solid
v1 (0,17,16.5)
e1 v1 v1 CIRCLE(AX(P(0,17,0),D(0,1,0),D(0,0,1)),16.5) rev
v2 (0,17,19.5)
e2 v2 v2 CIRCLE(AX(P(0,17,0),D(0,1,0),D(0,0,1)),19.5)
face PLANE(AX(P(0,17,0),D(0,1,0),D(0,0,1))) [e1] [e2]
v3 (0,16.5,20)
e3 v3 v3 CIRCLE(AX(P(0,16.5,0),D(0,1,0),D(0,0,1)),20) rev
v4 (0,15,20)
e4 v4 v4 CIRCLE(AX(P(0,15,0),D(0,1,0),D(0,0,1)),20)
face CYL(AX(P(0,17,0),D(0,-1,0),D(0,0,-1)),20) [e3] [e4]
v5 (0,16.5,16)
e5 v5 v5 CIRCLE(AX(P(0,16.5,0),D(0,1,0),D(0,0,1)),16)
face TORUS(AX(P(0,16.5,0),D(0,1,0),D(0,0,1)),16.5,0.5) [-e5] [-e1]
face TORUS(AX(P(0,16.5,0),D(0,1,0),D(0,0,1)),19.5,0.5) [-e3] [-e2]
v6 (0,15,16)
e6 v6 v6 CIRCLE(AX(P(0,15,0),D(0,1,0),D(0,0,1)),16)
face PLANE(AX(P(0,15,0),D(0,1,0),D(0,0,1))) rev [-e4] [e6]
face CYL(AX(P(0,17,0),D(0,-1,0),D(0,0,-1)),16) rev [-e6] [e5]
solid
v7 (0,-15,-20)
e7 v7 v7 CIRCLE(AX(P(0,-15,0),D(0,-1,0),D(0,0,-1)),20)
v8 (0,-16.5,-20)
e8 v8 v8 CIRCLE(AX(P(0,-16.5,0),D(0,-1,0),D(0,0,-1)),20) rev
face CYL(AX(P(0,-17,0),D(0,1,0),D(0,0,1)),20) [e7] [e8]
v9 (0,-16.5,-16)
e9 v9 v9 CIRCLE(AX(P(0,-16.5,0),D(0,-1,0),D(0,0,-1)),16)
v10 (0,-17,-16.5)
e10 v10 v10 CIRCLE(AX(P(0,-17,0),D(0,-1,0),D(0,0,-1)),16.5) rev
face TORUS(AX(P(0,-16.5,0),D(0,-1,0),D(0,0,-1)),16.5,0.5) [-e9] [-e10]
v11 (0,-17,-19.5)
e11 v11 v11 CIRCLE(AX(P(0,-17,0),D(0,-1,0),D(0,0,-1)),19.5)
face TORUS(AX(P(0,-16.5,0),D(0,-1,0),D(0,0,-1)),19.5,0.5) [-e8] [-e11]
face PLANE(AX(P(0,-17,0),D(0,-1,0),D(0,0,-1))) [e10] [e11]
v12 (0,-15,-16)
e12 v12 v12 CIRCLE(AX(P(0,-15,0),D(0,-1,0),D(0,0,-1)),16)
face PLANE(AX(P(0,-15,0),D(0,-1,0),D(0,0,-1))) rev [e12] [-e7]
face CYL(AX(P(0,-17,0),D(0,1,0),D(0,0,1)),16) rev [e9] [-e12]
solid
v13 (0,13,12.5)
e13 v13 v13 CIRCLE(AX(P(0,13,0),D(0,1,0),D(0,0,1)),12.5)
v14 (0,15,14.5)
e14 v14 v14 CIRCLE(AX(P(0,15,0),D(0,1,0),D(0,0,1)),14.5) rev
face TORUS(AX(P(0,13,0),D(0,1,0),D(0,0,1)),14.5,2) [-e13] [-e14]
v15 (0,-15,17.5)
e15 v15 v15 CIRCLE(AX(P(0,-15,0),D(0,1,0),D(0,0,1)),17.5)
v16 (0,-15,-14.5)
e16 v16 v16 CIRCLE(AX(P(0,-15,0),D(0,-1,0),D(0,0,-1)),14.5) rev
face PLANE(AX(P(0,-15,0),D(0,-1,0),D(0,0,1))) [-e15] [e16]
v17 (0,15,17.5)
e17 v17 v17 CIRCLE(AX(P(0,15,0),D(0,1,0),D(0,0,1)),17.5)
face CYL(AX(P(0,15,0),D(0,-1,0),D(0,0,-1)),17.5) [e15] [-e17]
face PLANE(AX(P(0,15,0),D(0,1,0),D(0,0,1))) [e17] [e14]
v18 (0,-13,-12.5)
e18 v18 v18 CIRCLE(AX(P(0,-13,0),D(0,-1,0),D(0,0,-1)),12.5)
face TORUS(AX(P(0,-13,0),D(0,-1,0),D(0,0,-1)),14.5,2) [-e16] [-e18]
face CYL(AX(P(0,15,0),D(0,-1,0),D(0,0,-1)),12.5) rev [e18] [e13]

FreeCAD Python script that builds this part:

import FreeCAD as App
import Part
import Sketcher

V = App.Vector
Q = App.Units.Quantity


def edges_at(feature, points):
    """Names of the edges that pass closest to the given points."""
    edges = feature.Shape.Edges
    near = lambda p: min(range(len(edges)), key=lambda i: edges[i].distToShape(Part.Vertex(*p))[0])
    return sorted({f"Edge{near(p) + 1}" for p in points})

doc = App.newDocument("Part")
body = doc.addObject("PartDesign::Body", "Body")

# Sketch on XZ plane
sketch1 = body.newObject("Sketcher::SketchObject", "Sketch")
sketch1.AttachmentSupport = (doc.getObject("XZ_Plane"), [""])
sketch1.MapMode = "FlatFace"
sketch1.addGeometry([
    Part.Circle(V(0, 0, 0), V(0, 0, 1), 18),
    Part.Circle(V(0, 0, 0), V(0, 0, 1), 12),
], False)
sketch1.addConstraint([
    Sketcher.Constraint("Coincident", 0, 3, -1, 1),
    Sketcher.Constraint("Coincident", 1, 3, -1, 1),
    Sketcher.Constraint("Diameter", 0, Q("35 mm")),
    Sketcher.Constraint("Diameter", 1, Q("25 mm")),
])
pad1 = body.newObject("PartDesign::Pad", "Pad")
pad1.Profile = sketch1
pad1.Length = 15
pad1.Reversed = True
doc.recompute()

fillet = body.newObject("PartDesign::Fillet", "Fillet")
fillet.Base = (pad1, edges_at(pad1, [(0, 15, -12.5)]))
fillet.Radius = 2
doc.recompute()

mirrored = body.newObject("PartDesign::Mirrored", "Mirrored")
mirrored.Originals = [pad1]
mirrored.MirrorPlane = (doc.getObject("XZ_Plane"), [""])
body.Tip = mirrored
doc.recompute()

fillet2 = body.newObject("PartDesign::Fillet", "Fillet001")
fillet2.Base = (mirrored, edges_at(mirrored, [(0, -15, -12.5)]))
fillet2.Radius = 2
body2 = doc.addObject("PartDesign::Body", "Body001")

# Sketch on XZ plane
sketch2 = body2.newObject("Sketcher::SketchObject", "Sketch001")
sketch2.AttachmentSupport = (doc.getObject("XZ_Plane001"), [""])
sketch2.MapMode = "FlatFace"
sketch2.AttachmentOffset = App.Placement(V(0, 0, -15), App.Rotation())
sketch2.addGeometry([
    Part.Circle(V(0, 0, 0), V(0, 0, 1), 20),
    Part.Circle(V(0, 0, 0), V(0, 0, 1), 16),
], False)
sketch2.addConstraint([
    Sketcher.Constraint("Coincident", 0, 3, -1, 1),
    Sketcher.Constraint("Coincident", 1, 3, -1, 1),
    Sketcher.Constraint("Diameter", 0, Q("40 mm")),
    Sketcher.Constraint("Diameter", 1, Q("32 mm")),
])
pad2 = body2.newObject("PartDesign::Pad", "Pad001")
pad2.Profile = sketch2
pad2.Length = 2
pad2.Reversed = True
doc.recompute()

fillet3 = body2.newObject("PartDesign::Fillet", "Fillet002")
fillet3.Base = (pad2, edges_at(pad2, [(0, 17, -20), (0, 17, -16)]))
fillet3.Radius = 0.5
body3 = doc.addObject("PartDesign::Body", "Body002")

# Sketch on XZ plane
sketch3 = body3.newObject("Sketcher::SketchObject", "Sketch002")
sketch3.AttachmentSupport = (doc.getObject("XZ_Plane002"), [""])
sketch3.MapMode = "FlatFace"
sketch3.AttachmentOffset = App.Placement(V(0, 0, 15), App.Rotation())
sketch3.addGeometry([
    Part.Circle(V(0, 0, 0), V(0, 0, 1), 20),
    Part.Circle(V(0, 0, 0), V(0, 0, 1), 16),
], False)
sketch3.addConstraint([
    Sketcher.Constraint("Coincident", 0, 3, -1, 1),
    Sketcher.Constraint("Coincident", 1, 3, -1, 1),
    Sketcher.Constraint("Diameter", 0, Q("40 mm")),
    Sketcher.Constraint("Diameter", 1, Q("32 mm")),
])
pad3 = body3.newObject("PartDesign::Pad", "Pad002")
pad3.Profile = sketch3
pad3.Length = 2
doc.recompute()

fillet4 = body3.newObject("PartDesign::Fillet", "Fillet003")
fillet4.Base = (pad3, edges_at(pad3, [(0, -17, 20), (0, -17, 16)]))
fillet4.Radius = 0.5

doc.recompute()
